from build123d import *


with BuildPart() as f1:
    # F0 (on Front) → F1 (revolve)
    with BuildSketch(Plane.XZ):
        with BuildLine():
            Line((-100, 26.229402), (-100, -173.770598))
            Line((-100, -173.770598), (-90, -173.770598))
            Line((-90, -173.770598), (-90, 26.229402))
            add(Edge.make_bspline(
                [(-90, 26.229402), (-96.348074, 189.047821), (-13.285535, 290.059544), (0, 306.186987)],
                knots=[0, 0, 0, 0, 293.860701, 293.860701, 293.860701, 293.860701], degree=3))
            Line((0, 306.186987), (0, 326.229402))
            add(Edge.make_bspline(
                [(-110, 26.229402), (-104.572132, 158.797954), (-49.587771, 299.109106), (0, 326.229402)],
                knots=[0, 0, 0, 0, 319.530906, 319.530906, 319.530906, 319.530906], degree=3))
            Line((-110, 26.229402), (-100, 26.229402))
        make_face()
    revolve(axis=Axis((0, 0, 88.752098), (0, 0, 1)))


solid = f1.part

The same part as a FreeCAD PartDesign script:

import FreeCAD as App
import Part
import Sketcher

V = App.Vector
Q = App.Units.Quantity

doc = App.newDocument("Part")
params = doc.addObject("Spreadsheet::Sheet", "Params")
for row, (alias, value) in enumerate([
    ("sketch1_height", "200 mm"),
    ("revolution_angle", "360 deg"),
], start=1):
    params.set(f"A{row}", alias)
    params.set(f"B{row}", "=" + value)
    params.setAlias(f"B{row}", alias)

body = doc.addObject("PartDesign::Body", "Body")

# Sketch on XZ plane
sketch1 = body.newObject("Sketcher::SketchObject", "Sketch")
sketch1.AttachmentSupport = (doc.getObject("XZ_Plane"), [""])
sketch1.MapMode = "FlatFace"
sketch1.addGeometry(Part.LineSegment(V(-100, 26.229402, 0), V(-100, -173.770598, 0)), False)
sketch1.addGeometry(Part.LineSegment(V(-100, -173.770598, 0), V(-90, -173.770598, 0)), False)
sketch1.addGeometry(Part.LineSegment(V(-90, -173.770598, 0), V(-90, 26.229402, 0)), False)
sketch1.addGeometry(Part.BSplineCurve([V(-90, 26.229402, 0), V(-96.348074, 189.047821, 0), V(-13.285535, 290.059544, 0), V(0, 306.186987, 0)], [4, 4], [0, 293.860701], False, 3, [1, 1, 1, 1], False), False)
sketch1.addGeometry(Part.LineSegment(V(0, 306.186987, 0), V(0, 326.229402, 0)), False)
sketch1.addGeometry(Part.BSplineCurve([V(-110, 26.229402, 0), V(-104.572132, 158.797954, 0), V(-49.587771, 299.109106, 0), V(0, 326.229402, 0)], [4, 4], [0, 319.530906], False, 3, [1, 1, 1, 1], False), False)
sketch1.addGeometry(Part.LineSegment(V(-110, 26.229402, 0), V(-100, 26.229402, 0)), False)
sketch1.addConstraint(Sketcher.Constraint("Block", 3))
sketch1.addConstraint(Sketcher.Constraint("Block", 5))
sketch1.addConstraint(Sketcher.Constraint("Coincident", 0, 2, 1, 1))
sketch1.addConstraint(Sketcher.Constraint("Coincident", 1, 2, 2, 1))
sketch1.addConstraint(Sketcher.Constraint("Coincident", 2, 2, 3, 1))
sketch1.addConstraint(Sketcher.Constraint("Coincident", 3, 2, 4, 1))
sketch1.addConstraint(Sketcher.Constraint("Coincident", 4, 2, 5, 2))
sketch1.addConstraint(Sketcher.Constraint("Coincident", 5, 1, 6, 1))
sketch1.addConstraint(Sketcher.Constraint("Coincident", 6, 2, 0, 1))
sketch1.addConstraint(Sketcher.Constraint("Vertical", 0))
sketch1.addConstraint(Sketcher.Constraint("Horizontal", 1))
sketch1.addConstraint(Sketcher.Constraint("Vertical", 2))
sketch1.addConstraint(Sketcher.Constraint("Horizontal", 6))
sketch1.addConstraint(Sketcher.Constraint("Equal", 1, 6))
sketch1.addConstraint(Sketcher.Constraint("DistanceY", 0, 2, 0, 1, Q("200 mm")))
sketch1.setExpression("Constraints[14]", "Params.sketch1_height")
revolution = body.newObject("PartDesign::Revolution", "Revolution")
revolution.Profile = sketch1
revolution.ReferenceAxis = (sketch1, ["V_Axis"])
revolution.setExpression("Angle", "Params.revolution_angle")

doc.recompute()
